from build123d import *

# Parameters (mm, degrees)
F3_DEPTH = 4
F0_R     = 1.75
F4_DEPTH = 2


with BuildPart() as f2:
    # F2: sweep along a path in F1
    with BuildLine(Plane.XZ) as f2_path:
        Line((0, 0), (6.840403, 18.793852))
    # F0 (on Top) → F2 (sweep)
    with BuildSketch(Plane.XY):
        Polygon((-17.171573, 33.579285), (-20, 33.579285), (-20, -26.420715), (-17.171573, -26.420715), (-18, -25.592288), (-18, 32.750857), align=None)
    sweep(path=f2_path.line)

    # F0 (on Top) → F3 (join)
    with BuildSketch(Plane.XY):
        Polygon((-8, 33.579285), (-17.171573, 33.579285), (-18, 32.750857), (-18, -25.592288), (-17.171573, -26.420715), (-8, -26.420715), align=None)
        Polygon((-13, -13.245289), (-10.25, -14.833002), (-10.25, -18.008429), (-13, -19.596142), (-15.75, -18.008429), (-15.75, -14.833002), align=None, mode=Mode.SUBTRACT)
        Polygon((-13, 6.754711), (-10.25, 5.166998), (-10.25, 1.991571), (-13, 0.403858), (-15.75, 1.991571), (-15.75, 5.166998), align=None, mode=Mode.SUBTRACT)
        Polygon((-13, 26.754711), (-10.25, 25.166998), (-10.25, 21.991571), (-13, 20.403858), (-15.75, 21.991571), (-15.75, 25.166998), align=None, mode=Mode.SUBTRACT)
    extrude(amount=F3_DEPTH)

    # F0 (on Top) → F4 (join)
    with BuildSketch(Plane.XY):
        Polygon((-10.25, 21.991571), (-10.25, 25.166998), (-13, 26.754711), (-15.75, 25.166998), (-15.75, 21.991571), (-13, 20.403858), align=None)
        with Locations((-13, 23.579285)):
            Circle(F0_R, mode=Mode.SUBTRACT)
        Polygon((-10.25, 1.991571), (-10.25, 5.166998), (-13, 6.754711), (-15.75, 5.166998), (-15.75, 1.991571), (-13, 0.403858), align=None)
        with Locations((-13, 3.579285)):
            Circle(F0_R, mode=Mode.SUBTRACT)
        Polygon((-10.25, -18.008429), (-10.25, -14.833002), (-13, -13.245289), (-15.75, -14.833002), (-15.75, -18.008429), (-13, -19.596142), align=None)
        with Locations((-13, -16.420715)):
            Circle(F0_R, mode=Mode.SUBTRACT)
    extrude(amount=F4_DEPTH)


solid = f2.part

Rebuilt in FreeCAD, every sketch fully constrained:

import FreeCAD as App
import Part
import Sketcher
Q = App.Units.Quantity


def add_polygon(sketch, points):
    """Adds a closed chain of lines whose ends are joined by coincident constraints."""
    first, n = sketch.GeometryCount, len(points)
    for a, b in zip(points, points[1:] + points[:1]):
        sketch.addGeometry(Part.LineSegment(App.Vector(*a, 0), App.Vector(*b, 0)), False)
    for i in range(n):
        sketch.addConstraint(Sketcher.Constraint("Coincident", first + i, 2, first + (i + 1) % n, 1))

doc = App.newDocument("Part")
body = doc.addObject("PartDesign::Body", "Body")

# Sketch on XY plane
sketch1 = doc.addObject("Sketcher::SketchObject", "Sketch")
body.addObject(sketch1)
sketch1.AttachmentSupport = (doc.XY_Plane, [""])
sketch1.MapMode = "FlatFace"
add_polygon(sketch1, [(-17.2, 33.6), (-20, 33.6), (-20, -26.4), (-17.2, -26.4), (-18, -25.6), (-18, 32.8)])  # lines 0-5
sketch1.addConstraint(Sketcher.Constraint("Horizontal", 0))
sketch1.addConstraint(Sketcher.Constraint("Vertical", 1))
sketch1.addConstraint(Sketcher.Constraint("Horizontal", 2))
sketch1.addConstraint(Sketcher.Constraint("Vertical", 4))
sketch1.addConstraint(Sketcher.Constraint("Perpendicular", 3, 5))
sketch1.addConstraint(Sketcher.Constraint("Vertical", 2, 2, 5, 2))
sketch1.addConstraint(Sketcher.Constraint("Equal", 3, 5))
sketch1.addConstraint(Sketcher.Constraint("DistanceY", 1, 2, 1, 1, Q("60 mm")))
sketch1.addConstraint(Sketcher.Constraint("DistanceX", 0, 2, -1, 1, Q("20 mm")))
sketch1.addConstraint(Sketcher.Constraint("DistanceX", 3, 2, -1, 1, Q("18 mm")))
sketch1.addConstraint(Sketcher.Constraint("DistanceX", 0, 2, 0, 1, Q("2.828427 mm")))
sketch1.addConstraint(Sketcher.Constraint("DistanceY", 3, 2, -1, 1, Q("25.592288 mm")))

# Sketch on an angled plane
sketch2 = doc.addObject("Sketcher::SketchObject", "Sketch001")
body.addObject(sketch2)
sketch2.Placement = App.Placement(App.Vector(0, 0, 0), App.Rotation(App.Vector(0.342020156, 0, 0.939692616), App.Vector(0, 1, 0), App.Vector(-0.939692616, 0, 0.342020156), "ZXY"))
sketch2.addGeometry(Part.LineSegment(App.Vector(0, 0, 0), App.Vector(20, 0, 0)), False)
sketch2.addConstraint(Sketcher.Constraint("Horizontal", 0))
sketch2.addConstraint(Sketcher.Constraint("Coincident", 0, 1, -1, 1))
sketch2.addConstraint(Sketcher.Constraint("DistanceX", 0, 1, 0, 2, Q("20 mm")))
doc.recompute()

additivepipe = doc.addObject("PartDesign::AdditivePipe", "AdditivePipe")
body.addObject(additivepipe)
additivepipe.Profile = sketch1
additivepipe.Spine = (sketch2, ["Edge1"])

# Sketch on XY plane
sketch3 = doc.addObject("Sketcher::SketchObject", "Sketch002")
body.addObject(sketch3)
sketch3.AttachmentSupport = (doc.XY_Plane, [""])
sketch3.MapMode = "FlatFace"
add_polygon(sketch3, [(-8, 33.6), (-17.2, 33.6), (-18, 32.8), (-18, -25.6), (-17.2, -26.4), (-8, -26.4)])  # lines 0-5
add_polygon(sketch3, [(-15.8, -14.8), (-13, -13.2), (-10.2, -14.8), (-10.2, -18), (-13, -19.6), (-15.8, -18)])  # lines 6-11
add_polygon(sketch3, [(-15.8, 5.2), (-13, 6.8), (-10.2, 5.2), (-10.2, 2), (-13, 0.4), (-15.8, 2)])  # lines 12-17
add_polygon(sketch3, [(-15.8, 25.2), (-13, 26.8), (-10.2, 25.2), (-10.2, 22), (-13, 20.4), (-15.8, 22)])  # lines 18-23
sketch3.addConstraint(Sketcher.Constraint("Horizontal", 0))
sketch3.addConstraint(Sketcher.Constraint("Vertical", 2))
sketch3.addConstraint(Sketcher.Constraint("Horizontal", 4))
sketch3.addConstraint(Sketcher.Constraint("Vertical", 5))
sketch3.addConstraint(Sketcher.Constraint("Vertical", 8))
sketch3.addConstraint(Sketcher.Constraint("Vertical", 11))
sketch3.addConstraint(Sketcher.Constraint("Vertical", 14))
sketch3.addConstraint(Sketcher.Constraint("Vertical", 17))
sketch3.addConstraint(Sketcher.Constraint("Vertical", 20))
sketch3.addConstraint(Sketcher.Constraint("Vertical", 23))
sketch3.addConstraint(Sketcher.Constraint("Perpendicular", 1, 3))
sketch3.addConstraint(Sketcher.Constraint("Parallel", 6, 9))
sketch3.addConstraint(Sketcher.Constraint("Parallel", 7, 10))
sketch3.addConstraint(Sketcher.Constraint("Parallel", 9, 12))
sketch3.addConstraint(Sketcher.Constraint("Parallel", 10, 13))
sketch3.addConstraint(Sketcher.Constraint("Parallel", 12, 15))
sketch3.addConstraint(Sketcher.Constraint("Parallel", 13, 16))
sketch3.addConstraint(Sketcher.Constraint("Parallel", 15, 18))
sketch3.addConstraint(Sketcher.Constraint("Parallel", 16, 19))
sketch3.addConstraint(Sketcher.Constraint("Parallel", 18, 21))
sketch3.addConstraint(Sketcher.Constraint("Parallel", 19, 22))
sketch3.addConstraint(Sketcher.Constraint("Horizontal", 8, 2, 10, 2))
sketch3.addConstraint(Sketcher.Constraint("Horizontal", 7, 2, 11, 2))
sketch3.addConstraint(Sketcher.Constraint("Horizontal", 14, 2, 16, 2))
sketch3.addConstraint(Sketcher.Constraint("Horizontal", 13, 2, 17, 2))
sketch3.addConstraint(Sketcher.Constraint("Horizontal", 20, 2, 22, 2))
sketch3.addConstraint(Sketcher.Constraint("Horizontal", 19, 2, 23, 2))
sketch3.addConstraint(Sketcher.Constraint("Vertical", 0, 2, 3, 2))
sketch3.addConstraint(Sketcher.Constraint("Vertical", 6, 2, 9, 2))
sketch3.addConstraint(Sketcher.Constraint("Vertical", 9, 2, 12, 2))
sketch3.addConstraint(Sketcher.Constraint("Vertical", 8, 2, 13, 2))
sketch3.addConstraint(Sketcher.Constraint("Vertical", 15, 2, 18, 2))
sketch3.addConstraint(Sketcher.Constraint("Vertical", 14, 2, 19, 2))
sketch3.addConstraint(Sketcher.Constraint("Equal", 11, 14))
sketch3.addConstraint(Sketcher.Constraint("Equal", 17, 20))
sketch3.addConstraint(Sketcher.Constraint("Equal", 1, 3))
sketch3.addConstraint(Sketcher.Constraint("DistanceY", 5, 1, 5, 2, Q("60 mm")))
sketch3.addConstraint(Sketcher.Constraint("Angle", 6, Q("29.999996 deg")))
sketch3.addConstraint(Sketcher.Constraint("DistanceX", 1, 2, -1, 1, Q("18 mm")))
sketch3.addConstraint(Sketcher.Constraint("DistanceX", 4, 2, -1, 1, Q("8 mm")))
sketch3.addConstraint(Sketcher.Constraint("DistanceX", 6, 2, -1, 1, Q("13 mm")))
sketch3.addConstraint(Sketcher.Constraint("DistanceY", 6, 2, 12, 2, Q("20 mm")))
sketch3.addConstraint(Sketcher.Constraint("DistanceY", 12, 2, 18, 2, Q("20 mm")))
sketch3.addConstraint(Sketcher.Constraint("DistanceX", 10, 2, 8, 2, Q("5.5 mm")))
sketch3.addConstraint(Sketcher.Constraint("DistanceY", -1, 1, 13, 2, Q("5.166998 mm")))
sketch3.addConstraint(Sketcher.Constraint("DistanceY", 2, 2, 6, 2, Q("12.346999 mm")))
sketch3.addConstraint(Sketcher.Constraint("DistanceY", 21, 2, 1, 2, Q("12.346999 mm")))
sketch3.addConstraint(Sketcher.Constraint("DistanceX", 0, 2, 0, 1, Q("9.171573 mm")))
pad1 = doc.addObject("PartDesign::Pad", "Pad")
body.addObject(pad1)
pad1.Profile = sketch3
pad1.Length = 4

# Sketch on XY plane
sketch4 = doc.addObject("Sketcher::SketchObject", "Sketch003")
body.addObject(sketch4)
sketch4.AttachmentSupport = (doc.XY_Plane, [""])
sketch4.MapMode = "FlatFace"
add_polygon(sketch4, [(-10.2, 22), (-10.2, 25.2), (-13, 26.8), (-15.8, 25.2), (-15.8, 22), (-13, 20.4)])  # lines 0-5
sketch4.addGeometry(Part.Circle(App.Vector(-13, 23.6, 0), App.Vector(0, 0, 1), 1.8), False)  # 6
add_polygon(sketch4, [(-10.2, 2), (-10.2, 5.2), (-13, 6.8), (-15.8, 5.2), (-15.8, 2), (-13, 0.4)])  # lines 7-12
sketch4.addGeometry(Part.Circle(App.Vector(-13, 3.6, 0), App.Vector(0, 0, 1), 1.8), False)  # 13
add_polygon(sketch4, [(-10.2, -18), (-10.2, -14.8), (-13, -13.2), (-15.8, -14.8), (-15.8, -18), (-13, -19.6)])  # lines 14-19
sketch4.addGeometry(Part.Circle(App.Vector(-13, -16.4, 0), App.Vector(0, 0, 1), 1.8), False)  # 20
sketch4.addConstraint(Sketcher.Constraint("Vertical", 0))
sketch4.addConstraint(Sketcher.Constraint("Vertical", 3))
sketch4.addConstraint(Sketcher.Constraint("Vertical", 7))
sketch4.addConstraint(Sketcher.Constraint("Vertical", 10))
sketch4.addConstraint(Sketcher.Constraint("Vertical", 14))
sketch4.addConstraint(Sketcher.Constraint("Vertical", 17))
sketch4.addConstraint(Sketcher.Constraint("Equal", 6, 13))
sketch4.addConstraint(Sketcher.Constraint("Equal", 13, 20))
sketch4.addConstraint(Sketcher.Constraint("Parallel", 1, 4))
sketch4.addConstraint(Sketcher.Constraint("Parallel", 2, 5))
sketch4.addConstraint(Sketcher.Constraint("Parallel", 4, 8))
sketch4.addConstraint(Sketcher.Constraint("Parallel", 5, 9))
sketch4.addConstraint(Sketcher.Constraint("Parallel", 8, 11))
sketch4.addConstraint(Sketcher.Constraint("Parallel", 9, 12))
sketch4.addConstraint(Sketcher.Constraint("Parallel", 11, 15))
sketch4.addConstraint(Sketcher.Constraint("Parallel", 12, 16))
sketch4.addConstraint(Sketcher.Constraint("Parallel", 15, 18))
sketch4.addConstraint(Sketcher.Constraint("Parallel", 16, 19))
sketch4.addConstraint(Sketcher.Constraint("Horizontal", 0, 2, 2, 2))
sketch4.addConstraint(Sketcher.Constraint("Horizontal", 3, 2, 5, 2))
sketch4.addConstraint(Sketcher.Constraint("Horizontal", 7, 2, 9, 2))
sketch4.addConstraint(Sketcher.Constraint("Horizontal", 10, 2, 12, 2))
sketch4.addConstraint(Sketcher.Constraint("Horizontal", 14, 2, 16, 2))
sketch4.addConstraint(Sketcher.Constraint("Horizontal", 17, 2, 19, 2))
sketch4.addConstraint(Sketcher.Constraint("Vertical", 6, 3, 13, 3))
sketch4.addConstraint(Sketcher.Constraint("Vertical", 13, 3, 20, 3))
sketch4.addConstraint(Sketcher.Constraint("Vertical", 20, 3, 1, 2))
sketch4.addConstraint(Sketcher.Constraint("Vertical", 1, 2, 4, 2))
sketch4.addConstraint(Sketcher.Constraint("Vertical", 5, 2, 7, 2))
sketch4.addConstraint(Sketcher.Constraint("Vertical", 4, 2, 8, 2))
sketch4.addConstraint(Sketcher.Constraint("Vertical", 12, 2, 14, 2))
sketch4.addConstraint(Sketcher.Constraint("Vertical", 11, 2, 15, 2))
sketch4.addConstraint(Sketcher.Constraint("Equal", 3, 7))
sketch4.addConstraint(Sketcher.Constraint("Equal", 10, 14))
sketch4.addConstraint(Sketcher.Constraint("Diameter", 6, Q("3.5 mm")))
sketch4.addConstraint(Sketcher.Constraint("Angle", 1, Q("150.000004 deg")))
sketch4.addConstraint(Sketcher.Constraint("DistanceX", 6, 3, -1, 1, Q("13 mm")))
sketch4.addConstraint(Sketcher.Constraint("DistanceY", 13, 3, 6, 3, Q("20 mm")))
sketch4.addConstraint(Sketcher.Constraint("DistanceY", 20, 3, 13, 3, Q("20 mm")))
sketch4.addConstraint(Sketcher.Constraint("DistanceX", 2, 2, 0, 2, Q("5.5 mm")))
sketch4.addConstraint(Sketcher.Constraint("DistanceY", -1, 1, 7, 2, Q("5.166998 mm")))
sketch4.addConstraint(Sketcher.Constraint("DistanceY", 0, 1, 0, 2, Q("3.175427 mm")))
sketch4.addConstraint(Sketcher.Constraint("DistanceY", -1, 1, 1, 2, Q("26.754711 mm")))
sketch4.addConstraint(Sketcher.Constraint("DistanceY", 15, 2, -1, 1, Q("13.245289 mm")))
sketch4.addConstraint(Sketcher.Constraint("DistanceY", -1, 1, 6, 3, Q("23.579285 mm")))
pad2 = doc.addObject("PartDesign::Pad", "Pad001")
body.addObject(pad2)
pad2.Profile = sketch4
pad2.Length = 2

doc.recompute()
